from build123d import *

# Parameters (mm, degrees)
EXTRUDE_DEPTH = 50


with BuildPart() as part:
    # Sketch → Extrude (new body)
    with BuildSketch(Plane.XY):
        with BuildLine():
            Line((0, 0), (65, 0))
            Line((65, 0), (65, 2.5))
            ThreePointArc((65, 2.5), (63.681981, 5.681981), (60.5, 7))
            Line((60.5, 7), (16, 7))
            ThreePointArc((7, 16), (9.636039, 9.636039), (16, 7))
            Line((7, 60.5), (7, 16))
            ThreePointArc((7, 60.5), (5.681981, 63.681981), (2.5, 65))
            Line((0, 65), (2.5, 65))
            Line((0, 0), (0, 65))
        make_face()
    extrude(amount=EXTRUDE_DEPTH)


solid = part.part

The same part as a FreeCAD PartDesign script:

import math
import FreeCAD as App
import Part
import Sketcher
Q = App.Units.Quantity

doc = App.newDocument("Part")
body = doc.addObject("PartDesign::Body", "Body")

sketch1 = body.newObject("Sketcher::SketchObject", "Sketch")
sketch1.AttachmentSupport = (doc.getObject("XY_Plane"), [""])
sketch1.MapMode = "FlatFace"
sketch1.addGeometry([
    Part.LineSegment(App.Vector(0, 0, 0), App.Vector(65, 0, 0)),
    Part.LineSegment(App.Vector(65, 0, 0), App.Vector(65, 2.5, 0)),
    Part.ArcOfCircle(Part.Circle(App.Vector(60.5, 2.5, 0), App.Vector(0, 0, 1), 4.5), math.radians(0), math.radians(90)),
    Part.LineSegment(App.Vector(60.5, 7, 0), App.Vector(16, 7, 0)),
    Part.ArcOfCircle(Part.Circle(App.Vector(16, 16, 0), App.Vector(0, 0, 1), 9), math.radians(-180), math.radians(-90)),
    Part.LineSegment(App.Vector(7, 16, 0), App.Vector(7, 60.5, 0)),
    Part.ArcOfCircle(Part.Circle(App.Vector(2.5, 60.5, 0), App.Vector(0, 0, 1), 4.5), math.radians(0), math.radians(90)),
    Part.LineSegment(App.Vector(2.5, 65, 0), App.Vector(0, 65, 0)),
    Part.LineSegment(App.Vector(0, 65, 0), App.Vector(0, 0, 0)),
], False)
sketch1.addConstraint([
    Sketcher.Constraint("Coincident", 0, 2, 1, 1),
    Sketcher.Constraint("Tangent", 1, 2, 2, 1),
    Sketcher.Constraint("Tangent", 2, 2, 3, 1),
    Sketcher.Constraint("Tangent", 3, 2, 4, 2),
    Sketcher.Constraint("Tangent", 4, 1, 5, 1),
    Sketcher.Constraint("Tangent", 5, 2, 6, 1),
    Sketcher.Constraint("Tangent", 6, 2, 7, 1),
    Sketcher.Constraint("Coincident", 7, 2, 8, 1),
    Sketcher.Constraint("Coincident", 8, 2, 0, 1),
    Sketcher.Constraint("Horizontal", 0),
    Sketcher.Constraint("Vertical", 1),
    Sketcher.Constraint("Horizontal", 3),
    Sketcher.Constraint("Vertical", 5),
    Sketcher.Constraint("Horizontal", 7),
    Sketcher.Constraint("Vertical", 8),
    Sketcher.Constraint("Coincident", 8, 2, -1, 1),
    Sketcher.Constraint("Equal", 2, 6),
    Sketcher.Constraint("Equal", 7, 1),
    Sketcher.Constraint("Equal", 3, 5),
    Sketcher.Constraint("Radius", 4, Q("9 mm")),
    Sketcher.Constraint("Radius", 2, Q("4.499998 mm")),
    Sketcher.Constraint("DistanceX", 0, 1, 0, 2, Q("65 mm")),
    Sketcher.Constraint("DistanceX", 3, 2, 3, 1, Q("44.5 mm")),
])
pad1 = body.newObject("PartDesign::Pad", "Pad")
pad1.Profile = sketch1
pad1.Length = 50

doc.recompute()
